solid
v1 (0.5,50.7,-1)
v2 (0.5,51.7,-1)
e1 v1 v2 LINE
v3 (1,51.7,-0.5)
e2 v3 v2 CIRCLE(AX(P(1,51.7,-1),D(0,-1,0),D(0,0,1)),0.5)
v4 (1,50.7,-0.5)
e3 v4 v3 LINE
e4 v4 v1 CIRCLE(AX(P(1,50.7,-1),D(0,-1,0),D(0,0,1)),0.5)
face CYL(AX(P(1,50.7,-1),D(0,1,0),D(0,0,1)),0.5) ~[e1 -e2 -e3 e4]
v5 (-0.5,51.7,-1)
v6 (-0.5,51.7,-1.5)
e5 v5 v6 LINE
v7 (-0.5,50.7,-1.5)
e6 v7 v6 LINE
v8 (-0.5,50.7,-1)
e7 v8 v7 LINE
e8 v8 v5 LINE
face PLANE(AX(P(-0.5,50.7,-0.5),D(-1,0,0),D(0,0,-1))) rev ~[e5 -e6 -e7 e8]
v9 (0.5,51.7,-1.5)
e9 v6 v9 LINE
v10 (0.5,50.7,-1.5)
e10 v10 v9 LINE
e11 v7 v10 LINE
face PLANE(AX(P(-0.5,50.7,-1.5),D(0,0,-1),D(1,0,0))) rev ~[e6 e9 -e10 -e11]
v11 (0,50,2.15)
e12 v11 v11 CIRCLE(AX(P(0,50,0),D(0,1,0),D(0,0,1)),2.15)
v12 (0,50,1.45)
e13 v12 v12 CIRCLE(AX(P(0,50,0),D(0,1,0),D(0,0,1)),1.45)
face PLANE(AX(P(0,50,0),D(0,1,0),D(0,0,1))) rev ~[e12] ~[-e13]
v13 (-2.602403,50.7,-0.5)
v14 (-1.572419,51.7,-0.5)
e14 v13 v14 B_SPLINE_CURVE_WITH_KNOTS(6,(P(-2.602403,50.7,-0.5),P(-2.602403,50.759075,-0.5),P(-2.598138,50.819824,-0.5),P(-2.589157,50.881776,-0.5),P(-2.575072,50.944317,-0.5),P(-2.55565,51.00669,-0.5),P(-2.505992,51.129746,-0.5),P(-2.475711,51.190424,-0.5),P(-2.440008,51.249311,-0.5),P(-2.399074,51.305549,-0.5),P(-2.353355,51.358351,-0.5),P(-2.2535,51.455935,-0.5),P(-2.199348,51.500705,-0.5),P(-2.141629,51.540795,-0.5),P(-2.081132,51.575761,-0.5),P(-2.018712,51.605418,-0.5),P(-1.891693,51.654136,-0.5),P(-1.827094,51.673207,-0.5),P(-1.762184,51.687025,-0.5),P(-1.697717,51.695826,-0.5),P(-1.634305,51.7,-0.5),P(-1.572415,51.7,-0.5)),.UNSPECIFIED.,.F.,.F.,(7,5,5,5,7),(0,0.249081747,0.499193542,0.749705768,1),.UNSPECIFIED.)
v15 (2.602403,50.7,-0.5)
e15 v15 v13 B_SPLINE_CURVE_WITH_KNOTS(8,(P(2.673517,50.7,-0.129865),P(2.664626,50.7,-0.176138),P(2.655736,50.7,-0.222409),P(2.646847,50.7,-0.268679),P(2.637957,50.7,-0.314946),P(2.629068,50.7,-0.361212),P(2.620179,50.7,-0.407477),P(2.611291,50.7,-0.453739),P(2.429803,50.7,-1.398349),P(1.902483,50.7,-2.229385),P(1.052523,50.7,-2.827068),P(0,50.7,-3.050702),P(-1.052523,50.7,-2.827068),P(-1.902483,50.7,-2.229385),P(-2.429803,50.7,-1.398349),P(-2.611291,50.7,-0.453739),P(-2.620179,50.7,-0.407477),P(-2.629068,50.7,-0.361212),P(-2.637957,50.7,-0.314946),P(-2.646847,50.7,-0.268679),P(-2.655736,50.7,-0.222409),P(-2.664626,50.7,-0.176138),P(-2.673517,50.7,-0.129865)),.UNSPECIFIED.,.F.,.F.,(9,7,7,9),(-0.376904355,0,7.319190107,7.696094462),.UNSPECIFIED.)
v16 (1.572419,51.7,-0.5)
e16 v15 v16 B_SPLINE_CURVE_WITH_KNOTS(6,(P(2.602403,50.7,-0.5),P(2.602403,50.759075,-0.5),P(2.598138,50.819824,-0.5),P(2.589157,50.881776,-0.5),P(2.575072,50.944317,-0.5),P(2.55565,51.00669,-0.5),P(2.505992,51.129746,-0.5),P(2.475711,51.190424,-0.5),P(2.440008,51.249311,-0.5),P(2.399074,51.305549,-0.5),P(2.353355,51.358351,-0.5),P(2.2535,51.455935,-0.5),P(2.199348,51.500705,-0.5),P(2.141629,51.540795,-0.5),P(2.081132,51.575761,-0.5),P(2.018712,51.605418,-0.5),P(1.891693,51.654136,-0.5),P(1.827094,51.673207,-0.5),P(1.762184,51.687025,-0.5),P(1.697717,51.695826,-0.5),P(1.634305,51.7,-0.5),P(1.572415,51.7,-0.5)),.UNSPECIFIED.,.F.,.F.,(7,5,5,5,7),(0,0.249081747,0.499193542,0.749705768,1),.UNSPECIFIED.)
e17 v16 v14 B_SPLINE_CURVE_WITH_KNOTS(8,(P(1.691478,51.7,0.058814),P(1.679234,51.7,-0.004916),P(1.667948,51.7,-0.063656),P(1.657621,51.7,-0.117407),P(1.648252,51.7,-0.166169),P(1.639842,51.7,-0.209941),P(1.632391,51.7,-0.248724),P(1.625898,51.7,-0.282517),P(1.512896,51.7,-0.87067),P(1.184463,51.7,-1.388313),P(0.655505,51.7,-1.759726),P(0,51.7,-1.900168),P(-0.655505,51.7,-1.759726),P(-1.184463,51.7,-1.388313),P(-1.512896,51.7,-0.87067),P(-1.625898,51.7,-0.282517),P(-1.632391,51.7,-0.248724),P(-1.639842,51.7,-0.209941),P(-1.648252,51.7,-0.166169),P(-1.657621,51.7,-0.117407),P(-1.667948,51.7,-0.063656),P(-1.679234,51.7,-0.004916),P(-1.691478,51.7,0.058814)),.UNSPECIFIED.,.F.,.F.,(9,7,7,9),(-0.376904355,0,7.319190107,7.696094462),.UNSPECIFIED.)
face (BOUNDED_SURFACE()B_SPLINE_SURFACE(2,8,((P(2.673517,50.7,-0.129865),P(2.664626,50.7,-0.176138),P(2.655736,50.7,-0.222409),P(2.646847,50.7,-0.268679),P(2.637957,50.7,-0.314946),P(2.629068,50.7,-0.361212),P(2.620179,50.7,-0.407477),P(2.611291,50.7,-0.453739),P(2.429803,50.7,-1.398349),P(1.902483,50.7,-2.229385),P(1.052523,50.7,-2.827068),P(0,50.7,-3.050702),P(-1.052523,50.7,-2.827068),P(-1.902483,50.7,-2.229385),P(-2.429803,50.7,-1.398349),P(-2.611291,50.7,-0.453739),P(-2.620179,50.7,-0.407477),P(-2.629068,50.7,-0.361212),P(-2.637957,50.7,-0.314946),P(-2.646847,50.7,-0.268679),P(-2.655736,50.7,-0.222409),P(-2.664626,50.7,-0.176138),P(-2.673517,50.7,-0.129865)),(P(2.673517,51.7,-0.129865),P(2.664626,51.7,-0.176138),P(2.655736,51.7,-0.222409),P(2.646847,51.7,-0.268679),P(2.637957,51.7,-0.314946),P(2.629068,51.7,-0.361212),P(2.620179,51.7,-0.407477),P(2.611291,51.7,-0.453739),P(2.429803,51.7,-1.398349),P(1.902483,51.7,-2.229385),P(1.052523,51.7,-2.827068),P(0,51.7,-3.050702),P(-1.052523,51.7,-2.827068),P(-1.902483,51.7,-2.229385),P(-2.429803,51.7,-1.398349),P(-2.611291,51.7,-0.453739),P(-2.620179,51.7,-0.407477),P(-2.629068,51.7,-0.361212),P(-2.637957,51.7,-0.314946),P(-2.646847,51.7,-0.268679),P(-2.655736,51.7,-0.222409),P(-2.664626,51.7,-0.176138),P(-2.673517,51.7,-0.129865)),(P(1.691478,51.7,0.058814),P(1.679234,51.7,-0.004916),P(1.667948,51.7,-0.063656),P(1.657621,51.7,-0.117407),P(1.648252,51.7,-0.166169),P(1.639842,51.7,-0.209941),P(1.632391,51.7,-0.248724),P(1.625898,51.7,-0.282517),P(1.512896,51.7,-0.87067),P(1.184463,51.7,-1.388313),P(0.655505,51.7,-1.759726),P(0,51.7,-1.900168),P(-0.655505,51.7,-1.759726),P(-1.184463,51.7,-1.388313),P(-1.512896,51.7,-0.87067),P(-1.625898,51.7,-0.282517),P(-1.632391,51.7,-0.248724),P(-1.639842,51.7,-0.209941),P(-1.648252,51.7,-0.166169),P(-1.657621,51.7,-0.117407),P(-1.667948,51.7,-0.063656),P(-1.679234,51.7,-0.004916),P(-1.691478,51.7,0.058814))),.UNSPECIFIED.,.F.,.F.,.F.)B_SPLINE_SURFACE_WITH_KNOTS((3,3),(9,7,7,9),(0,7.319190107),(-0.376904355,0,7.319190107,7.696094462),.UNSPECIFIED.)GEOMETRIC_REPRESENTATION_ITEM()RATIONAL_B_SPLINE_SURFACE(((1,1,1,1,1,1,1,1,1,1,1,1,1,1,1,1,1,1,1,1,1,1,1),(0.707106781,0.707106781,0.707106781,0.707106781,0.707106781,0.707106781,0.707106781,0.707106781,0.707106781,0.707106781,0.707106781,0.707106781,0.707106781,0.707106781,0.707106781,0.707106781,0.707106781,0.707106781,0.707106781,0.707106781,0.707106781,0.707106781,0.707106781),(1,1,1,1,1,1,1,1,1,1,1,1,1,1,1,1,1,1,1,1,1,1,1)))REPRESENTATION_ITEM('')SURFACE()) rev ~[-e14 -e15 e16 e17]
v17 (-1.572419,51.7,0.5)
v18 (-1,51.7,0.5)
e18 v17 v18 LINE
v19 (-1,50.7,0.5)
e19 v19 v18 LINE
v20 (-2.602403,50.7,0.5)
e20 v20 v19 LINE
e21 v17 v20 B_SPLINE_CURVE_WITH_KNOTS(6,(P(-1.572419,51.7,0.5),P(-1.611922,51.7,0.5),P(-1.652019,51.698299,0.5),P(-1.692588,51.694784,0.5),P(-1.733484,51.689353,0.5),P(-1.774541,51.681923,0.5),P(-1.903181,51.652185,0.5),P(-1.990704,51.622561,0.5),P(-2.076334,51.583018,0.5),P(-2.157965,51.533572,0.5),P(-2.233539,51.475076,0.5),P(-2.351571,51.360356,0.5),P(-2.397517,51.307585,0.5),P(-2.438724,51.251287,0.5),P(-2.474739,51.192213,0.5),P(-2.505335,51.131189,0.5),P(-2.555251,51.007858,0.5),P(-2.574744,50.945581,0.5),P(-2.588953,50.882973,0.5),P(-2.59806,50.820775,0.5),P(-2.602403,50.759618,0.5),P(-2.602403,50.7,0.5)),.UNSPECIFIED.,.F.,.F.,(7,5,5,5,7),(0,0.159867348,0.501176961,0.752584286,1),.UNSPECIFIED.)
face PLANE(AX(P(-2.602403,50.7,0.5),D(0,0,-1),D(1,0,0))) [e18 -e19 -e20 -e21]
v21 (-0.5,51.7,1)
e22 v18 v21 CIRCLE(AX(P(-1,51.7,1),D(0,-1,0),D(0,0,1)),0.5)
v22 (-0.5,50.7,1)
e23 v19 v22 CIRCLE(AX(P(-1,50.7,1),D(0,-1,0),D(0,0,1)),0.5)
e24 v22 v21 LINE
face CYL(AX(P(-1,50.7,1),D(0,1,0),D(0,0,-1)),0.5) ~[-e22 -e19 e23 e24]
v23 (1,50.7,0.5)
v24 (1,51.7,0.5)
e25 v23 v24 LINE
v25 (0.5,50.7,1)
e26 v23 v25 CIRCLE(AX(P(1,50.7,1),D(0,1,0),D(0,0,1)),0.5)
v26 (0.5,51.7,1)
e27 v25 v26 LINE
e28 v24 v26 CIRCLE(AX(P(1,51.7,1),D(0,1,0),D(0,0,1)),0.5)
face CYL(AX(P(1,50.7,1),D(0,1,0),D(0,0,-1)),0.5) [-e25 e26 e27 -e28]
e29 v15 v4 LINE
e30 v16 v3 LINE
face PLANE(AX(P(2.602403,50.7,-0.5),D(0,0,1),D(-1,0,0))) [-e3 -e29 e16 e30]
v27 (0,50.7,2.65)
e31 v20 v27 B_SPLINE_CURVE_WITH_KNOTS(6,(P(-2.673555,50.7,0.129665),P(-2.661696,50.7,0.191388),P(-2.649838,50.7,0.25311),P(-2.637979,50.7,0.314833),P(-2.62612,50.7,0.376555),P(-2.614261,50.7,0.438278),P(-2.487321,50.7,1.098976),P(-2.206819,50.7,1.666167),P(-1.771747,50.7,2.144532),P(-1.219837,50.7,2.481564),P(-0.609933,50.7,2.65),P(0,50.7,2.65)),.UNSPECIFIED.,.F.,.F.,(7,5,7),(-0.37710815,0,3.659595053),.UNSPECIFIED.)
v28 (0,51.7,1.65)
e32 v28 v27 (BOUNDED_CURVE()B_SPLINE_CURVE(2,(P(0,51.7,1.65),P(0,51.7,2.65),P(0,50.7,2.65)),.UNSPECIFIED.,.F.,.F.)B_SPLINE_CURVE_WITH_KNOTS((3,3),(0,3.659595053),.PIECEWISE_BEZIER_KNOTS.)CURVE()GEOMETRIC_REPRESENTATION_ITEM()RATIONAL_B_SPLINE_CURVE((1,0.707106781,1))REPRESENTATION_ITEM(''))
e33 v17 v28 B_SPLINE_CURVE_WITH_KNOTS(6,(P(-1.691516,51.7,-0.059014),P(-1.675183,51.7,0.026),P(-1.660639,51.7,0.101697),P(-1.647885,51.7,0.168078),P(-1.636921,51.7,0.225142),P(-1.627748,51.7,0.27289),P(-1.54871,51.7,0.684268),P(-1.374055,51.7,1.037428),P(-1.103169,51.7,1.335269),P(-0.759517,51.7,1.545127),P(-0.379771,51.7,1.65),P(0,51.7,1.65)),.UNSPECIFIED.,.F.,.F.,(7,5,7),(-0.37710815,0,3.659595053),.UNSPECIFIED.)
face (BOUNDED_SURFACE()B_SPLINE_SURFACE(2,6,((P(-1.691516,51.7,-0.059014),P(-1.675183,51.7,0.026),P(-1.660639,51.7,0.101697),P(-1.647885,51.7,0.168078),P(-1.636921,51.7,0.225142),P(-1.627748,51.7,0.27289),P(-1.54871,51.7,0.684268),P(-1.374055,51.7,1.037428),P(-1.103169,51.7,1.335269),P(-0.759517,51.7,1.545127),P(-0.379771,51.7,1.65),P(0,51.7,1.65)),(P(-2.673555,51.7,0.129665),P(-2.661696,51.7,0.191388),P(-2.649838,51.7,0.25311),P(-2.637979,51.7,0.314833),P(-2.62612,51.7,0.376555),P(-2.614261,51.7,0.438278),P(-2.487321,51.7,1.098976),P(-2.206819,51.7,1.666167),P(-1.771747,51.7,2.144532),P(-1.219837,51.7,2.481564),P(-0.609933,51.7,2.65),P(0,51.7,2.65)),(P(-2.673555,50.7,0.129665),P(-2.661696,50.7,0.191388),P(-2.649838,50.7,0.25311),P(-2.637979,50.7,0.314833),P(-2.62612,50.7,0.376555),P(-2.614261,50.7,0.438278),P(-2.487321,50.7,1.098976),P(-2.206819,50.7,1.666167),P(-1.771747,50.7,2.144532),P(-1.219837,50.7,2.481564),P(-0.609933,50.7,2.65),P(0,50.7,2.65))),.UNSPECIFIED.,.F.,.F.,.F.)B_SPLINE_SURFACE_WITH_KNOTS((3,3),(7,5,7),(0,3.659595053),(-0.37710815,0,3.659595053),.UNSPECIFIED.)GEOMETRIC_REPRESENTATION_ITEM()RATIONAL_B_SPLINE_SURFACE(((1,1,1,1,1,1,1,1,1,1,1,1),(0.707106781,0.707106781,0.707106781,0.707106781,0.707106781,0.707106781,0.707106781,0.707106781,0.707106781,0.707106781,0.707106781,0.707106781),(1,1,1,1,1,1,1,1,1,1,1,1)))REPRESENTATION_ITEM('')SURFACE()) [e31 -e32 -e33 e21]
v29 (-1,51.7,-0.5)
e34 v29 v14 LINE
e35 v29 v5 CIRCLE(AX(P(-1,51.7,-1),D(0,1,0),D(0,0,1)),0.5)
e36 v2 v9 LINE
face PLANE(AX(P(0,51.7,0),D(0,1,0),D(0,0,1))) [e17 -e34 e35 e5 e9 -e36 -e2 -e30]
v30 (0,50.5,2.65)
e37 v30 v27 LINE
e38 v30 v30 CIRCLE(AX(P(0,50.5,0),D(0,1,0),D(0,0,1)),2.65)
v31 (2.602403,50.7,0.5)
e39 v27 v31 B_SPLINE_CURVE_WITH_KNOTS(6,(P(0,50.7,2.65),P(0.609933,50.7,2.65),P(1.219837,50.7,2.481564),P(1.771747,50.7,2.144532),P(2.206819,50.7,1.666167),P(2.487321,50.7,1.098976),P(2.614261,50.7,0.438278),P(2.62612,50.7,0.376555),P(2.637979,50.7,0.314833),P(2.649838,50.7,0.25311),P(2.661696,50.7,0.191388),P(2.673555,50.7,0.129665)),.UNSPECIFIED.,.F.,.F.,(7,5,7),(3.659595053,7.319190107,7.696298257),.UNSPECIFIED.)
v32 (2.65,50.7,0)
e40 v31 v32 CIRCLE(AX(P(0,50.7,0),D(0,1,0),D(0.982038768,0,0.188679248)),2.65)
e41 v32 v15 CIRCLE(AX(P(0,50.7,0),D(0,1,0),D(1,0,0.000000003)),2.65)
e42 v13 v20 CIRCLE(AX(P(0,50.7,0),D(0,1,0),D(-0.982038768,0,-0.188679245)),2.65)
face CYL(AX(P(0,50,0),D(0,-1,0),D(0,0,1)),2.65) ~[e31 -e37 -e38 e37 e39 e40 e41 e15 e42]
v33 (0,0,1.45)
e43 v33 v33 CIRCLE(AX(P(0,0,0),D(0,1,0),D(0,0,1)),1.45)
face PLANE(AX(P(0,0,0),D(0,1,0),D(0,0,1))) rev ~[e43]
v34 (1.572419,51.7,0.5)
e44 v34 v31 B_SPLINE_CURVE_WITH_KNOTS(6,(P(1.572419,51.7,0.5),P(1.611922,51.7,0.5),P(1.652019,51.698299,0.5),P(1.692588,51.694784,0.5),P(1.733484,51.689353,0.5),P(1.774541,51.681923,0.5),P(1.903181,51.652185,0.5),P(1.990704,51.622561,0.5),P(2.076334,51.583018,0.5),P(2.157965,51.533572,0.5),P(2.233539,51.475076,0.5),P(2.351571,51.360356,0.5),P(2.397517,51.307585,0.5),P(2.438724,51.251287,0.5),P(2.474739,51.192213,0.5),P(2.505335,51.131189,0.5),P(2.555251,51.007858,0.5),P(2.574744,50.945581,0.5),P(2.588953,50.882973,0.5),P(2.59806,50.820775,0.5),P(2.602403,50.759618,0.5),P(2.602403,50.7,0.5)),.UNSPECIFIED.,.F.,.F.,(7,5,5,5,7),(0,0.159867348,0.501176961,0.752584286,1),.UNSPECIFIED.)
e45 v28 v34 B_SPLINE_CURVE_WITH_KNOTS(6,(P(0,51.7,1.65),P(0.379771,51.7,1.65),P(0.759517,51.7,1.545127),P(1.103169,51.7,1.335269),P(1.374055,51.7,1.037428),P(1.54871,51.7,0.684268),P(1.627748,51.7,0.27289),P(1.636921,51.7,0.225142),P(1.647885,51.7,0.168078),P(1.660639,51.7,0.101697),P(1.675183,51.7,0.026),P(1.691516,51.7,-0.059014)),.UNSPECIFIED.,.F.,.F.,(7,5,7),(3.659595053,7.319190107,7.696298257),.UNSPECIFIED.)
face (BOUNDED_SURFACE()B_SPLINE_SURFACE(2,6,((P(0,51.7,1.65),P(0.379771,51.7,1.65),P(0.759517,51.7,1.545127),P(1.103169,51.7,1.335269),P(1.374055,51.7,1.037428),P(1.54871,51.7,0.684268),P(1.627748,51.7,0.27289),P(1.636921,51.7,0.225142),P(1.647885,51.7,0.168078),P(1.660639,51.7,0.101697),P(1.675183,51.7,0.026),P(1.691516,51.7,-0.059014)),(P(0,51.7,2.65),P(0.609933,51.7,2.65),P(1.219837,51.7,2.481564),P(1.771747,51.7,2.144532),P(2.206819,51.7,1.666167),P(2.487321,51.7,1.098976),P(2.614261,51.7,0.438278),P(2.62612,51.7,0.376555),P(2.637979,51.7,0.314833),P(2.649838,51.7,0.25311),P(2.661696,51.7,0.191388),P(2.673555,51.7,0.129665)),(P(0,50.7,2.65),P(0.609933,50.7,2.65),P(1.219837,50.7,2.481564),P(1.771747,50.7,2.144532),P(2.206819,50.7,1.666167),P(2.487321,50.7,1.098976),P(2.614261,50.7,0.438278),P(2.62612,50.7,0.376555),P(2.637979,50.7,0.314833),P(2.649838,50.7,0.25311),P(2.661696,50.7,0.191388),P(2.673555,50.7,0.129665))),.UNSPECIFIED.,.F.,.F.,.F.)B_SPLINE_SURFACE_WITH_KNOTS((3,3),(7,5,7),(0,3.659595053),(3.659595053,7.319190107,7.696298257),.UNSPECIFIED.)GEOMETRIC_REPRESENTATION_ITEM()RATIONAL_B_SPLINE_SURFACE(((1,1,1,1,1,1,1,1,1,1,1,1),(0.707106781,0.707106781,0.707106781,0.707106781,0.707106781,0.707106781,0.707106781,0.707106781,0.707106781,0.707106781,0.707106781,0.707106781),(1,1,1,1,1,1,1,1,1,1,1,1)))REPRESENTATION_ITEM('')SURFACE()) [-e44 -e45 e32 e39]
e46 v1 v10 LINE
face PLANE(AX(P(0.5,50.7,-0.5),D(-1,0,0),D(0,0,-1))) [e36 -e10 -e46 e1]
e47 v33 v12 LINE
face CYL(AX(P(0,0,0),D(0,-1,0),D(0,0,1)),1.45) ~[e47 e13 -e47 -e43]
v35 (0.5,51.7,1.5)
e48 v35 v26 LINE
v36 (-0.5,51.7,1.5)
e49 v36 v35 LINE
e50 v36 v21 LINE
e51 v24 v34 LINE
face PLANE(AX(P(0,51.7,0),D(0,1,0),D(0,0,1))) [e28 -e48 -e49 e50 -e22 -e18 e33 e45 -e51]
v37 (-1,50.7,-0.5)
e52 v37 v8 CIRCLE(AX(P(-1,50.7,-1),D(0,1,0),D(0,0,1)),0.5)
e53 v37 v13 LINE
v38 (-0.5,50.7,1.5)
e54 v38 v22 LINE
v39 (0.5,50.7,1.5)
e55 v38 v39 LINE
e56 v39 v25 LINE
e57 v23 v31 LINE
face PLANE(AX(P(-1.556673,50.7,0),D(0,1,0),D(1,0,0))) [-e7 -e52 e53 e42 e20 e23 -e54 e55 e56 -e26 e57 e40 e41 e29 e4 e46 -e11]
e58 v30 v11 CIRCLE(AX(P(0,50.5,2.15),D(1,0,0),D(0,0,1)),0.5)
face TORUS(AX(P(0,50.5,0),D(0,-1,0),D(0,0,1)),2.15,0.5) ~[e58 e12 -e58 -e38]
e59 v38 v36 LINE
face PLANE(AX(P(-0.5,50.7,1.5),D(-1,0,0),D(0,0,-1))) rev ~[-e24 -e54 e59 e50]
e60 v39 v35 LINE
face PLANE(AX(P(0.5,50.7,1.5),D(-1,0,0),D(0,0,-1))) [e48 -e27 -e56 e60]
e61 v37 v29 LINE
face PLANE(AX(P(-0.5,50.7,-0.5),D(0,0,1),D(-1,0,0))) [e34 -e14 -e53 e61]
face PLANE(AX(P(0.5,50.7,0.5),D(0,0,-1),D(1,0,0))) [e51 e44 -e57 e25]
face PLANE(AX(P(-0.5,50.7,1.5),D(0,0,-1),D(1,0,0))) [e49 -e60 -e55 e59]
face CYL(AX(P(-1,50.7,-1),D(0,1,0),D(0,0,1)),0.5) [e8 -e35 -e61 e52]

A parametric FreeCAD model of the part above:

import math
import FreeCAD as App
import Part
import Sketcher


def edges_at(feature, points):
    """Names of the edges that pass closest to the given points."""
    edges = feature.Shape.Edges
    near = lambda p: min(range(len(edges)), key=lambda i: edges[i].distToShape(Part.Vertex(*p))[0])
    return sorted({f"Edge{near(p) + 1}" for p in points})

doc = App.newDocument("Part")
body = doc.addObject("PartDesign::Body", "Body")

# Sketch on XZ plane
sketch1 = body.newObject("Sketcher::SketchObject", "Sketch")
sketch1.AttachmentSupport = (doc.getObject("XZ_Plane"), [""])
sketch1.MapMode = "FlatFace"
sketch1.addGeometry(Part.Circle(App.Vector(0, 0, 0), App.Vector(0, 0, 1), 1.45), False)
sketch1.addConstraint([
    Sketcher.Constraint("Coincident", 0, 3, -1, 1),
    Sketcher.Constraint("Diameter", 0, 2.9),
])
pad1 = body.newObject("PartDesign::Pad", "Pad")
pad1.Profile = sketch1
pad1.Length = 50
pad1.Reversed = True

# Sketch on XZ plane
sketch2 = body.newObject("Sketcher::SketchObject", "Sketch001")
sketch2.AttachmentSupport = (doc.getObject("XZ_Plane"), [""])
sketch2.MapMode = "FlatFace"
sketch2.AttachmentOffset = App.Placement(App.Vector(0, 0, -50), App.Rotation())
sketch2.addGeometry(Part.Circle(App.Vector(0, 0, 0), App.Vector(0, 0, 1), 2.65), False)
sketch2.addConstraint([
    Sketcher.Constraint("Coincident", 0, 3, -1, 1),
    Sketcher.Constraint("Diameter", 0, 5.3),
])
pad2 = body.newObject("PartDesign::Pad", "Pad001")
pad2.Profile = sketch2
pad2.Length = 1.7
pad2.Reversed = True

# Sketch on XZ plane
sketch3 = body.newObject("Sketcher::SketchObject", "Sketch002")
sketch3.AttachmentSupport = (doc.getObject("XZ_Plane"), [""])
sketch3.MapMode = "FlatFace"
sketch3.AttachmentOffset = App.Placement(App.Vector(0, 0, -50.7), App.Rotation())
sketch3.addGeometry([
    Part.LineSegment(App.Vector(-0.5, -0.5, 0), App.Vector(-2.602403, -0.5, 0)),  # 0
    Part.ArcOfCircle(Part.Circle(App.Vector(0, 0, 0), App.Vector(0, 0, 1), 2.65), math.radians(169.124284), math.radians(190.875716)),  # 1
    Part.LineSegment(App.Vector(-2.602403, 0.5, 0), App.Vector(-0.5, 0.5, 0)),  # 2
    Part.LineSegment(App.Vector(-0.5, 0.5, 0), App.Vector(-0.5, 1.5, 0)),  # 3
    Part.LineSegment(App.Vector(-0.5, 1.5, 0), App.Vector(0.5, 1.5, 0)),  # 4
    Part.LineSegment(App.Vector(0.5, 1.5, 0), App.Vector(0.5, 0.5, 0)),  # 5
    Part.LineSegment(App.Vector(0.5, 0.5, 0), App.Vector(2.602403, 0.5, 0)),  # 6
    Part.ArcOfCircle(Part.Circle(App.Vector(0, 0, 0), App.Vector(0, 0, 1), 2.65), math.radians(0), math.radians(10.875717)),  # 7
    Part.ArcOfCircle(Part.Circle(App.Vector(0, 0, 0), App.Vector(0, 0, 1), 2.65), math.radians(-10.875717), math.radians(0)),  # 8
    Part.LineSegment(App.Vector(2.602403, -0.5, 0), App.Vector(0.5, -0.5, 0)),  # 9
    Part.LineSegment(App.Vector(0.5, -0.5, 0), App.Vector(0.5, -1.5, 0)),  # 10
    Part.LineSegment(App.Vector(0.5, -1.5, 0), App.Vector(-0.5, -1.5, 0)),  # 11
    Part.LineSegment(App.Vector(-0.5, -1.5, 0), App.Vector(-0.5, -0.5, 0)),  # 12
], False)
sketch3.addConstraint([
    Sketcher.Constraint("Coincident", 0, 2, 1, 2),
    Sketcher.Constraint("Coincident", 1, 1, 2, 1),
    Sketcher.Constraint("Coincident", 2, 2, 3, 1),
    Sketcher.Constraint("Coincident", 3, 2, 4, 1),
    Sketcher.Constraint("Coincident", 4, 2, 5, 1),
    Sketcher.Constraint("Coincident", 5, 2, 6, 1),
    Sketcher.Constraint("Coincident", 6, 2, 7, 2),
    Sketcher.Constraint("Tangent", 7, 1, 8, 2),
    Sketcher.Constraint("Coincident", 8, 1, 9, 1),
    Sketcher.Constraint("Coincident", 9, 2, 10, 1),
    Sketcher.Constraint("Coincident", 10, 2, 11, 1),
    Sketcher.Constraint("Coincident", 11, 2, 12, 1),
    Sketcher.Constraint("Coincident", 12, 2, 0, 1),
    Sketcher.Constraint("Horizontal", 0),
    Sketcher.Constraint("Horizontal", 2),
    Sketcher.Constraint("Vertical", 3),
    Sketcher.Constraint("Horizontal", 4),
    Sketcher.Constraint("Vertical", 5),
    Sketcher.Constraint("Horizontal", 6),
    Sketcher.Constraint("Horizontal", 9),
    Sketcher.Constraint("Vertical", 10),
    Sketcher.Constraint("Horizontal", 11),
    Sketcher.Constraint("Vertical", 12),
    Sketcher.Constraint("Coincident", 1, 3, -1, 1),
    Sketcher.Constraint("Coincident", 7, 3, -1, 1),
    Sketcher.Constraint("Equal", 1, 7),
    Sketcher.Constraint("Equal", 7, 8),
    Sketcher.Constraint("Symmetric", 2, 2, 9, 2, -1, 1),
    Sketcher.Constraint("Symmetric", 4, 2, 11, 2, -1, 1),
    Sketcher.Constraint("Symmetric", 2, 2, 5, 2, -2),
    Sketcher.Constraint("PointOnObject", 7, 1, -1),
    Sketcher.Constraint("Horizontal", 0, 2, 8, 1),
    Sketcher.Constraint("Equal", 11, 3),
    Sketcher.Constraint("DistanceX", 4, 1, 4, 2, 1.0),
    Sketcher.Constraint("Radius", 1, 2.65),
    Sketcher.Constraint("DistanceY", 0, 2, 1, 1, 1.0),
])
pocket1 = body.newObject("PartDesign::Pocket", "Pocket")
pocket1.Profile = sketch3
pocket1.Length = 1
doc.recompute()

fillet = body.newObject("PartDesign::Fillet", "Fillet")
fillet.Base = (pocket1, edges_at(pocket1, [
    (-0.5, 51.2, 0.5),
    (-0.5, 51.2, -0.5),
    (0.5, 51.2, -0.5),
    (0.5, 51.2, 0.5),
]))
fillet.Radius = 0.5
doc.recompute()

fillet2 = body.newObject("PartDesign::Fillet", "Fillet001")
fillet2.Base = (fillet, edges_at(fillet, [(0, 51.7, -2.65), (1.688, 51.7, 2.043)]))
fillet2.Radius = 1
doc.recompute()

fillet3 = body.newObject("PartDesign::Fillet", "Fillet002")
fillet3.Base = (fillet2, edges_at(fillet2, [(0, 50, -2.65)]))
fillet3.Radius = 0.5

doc.recompute()
